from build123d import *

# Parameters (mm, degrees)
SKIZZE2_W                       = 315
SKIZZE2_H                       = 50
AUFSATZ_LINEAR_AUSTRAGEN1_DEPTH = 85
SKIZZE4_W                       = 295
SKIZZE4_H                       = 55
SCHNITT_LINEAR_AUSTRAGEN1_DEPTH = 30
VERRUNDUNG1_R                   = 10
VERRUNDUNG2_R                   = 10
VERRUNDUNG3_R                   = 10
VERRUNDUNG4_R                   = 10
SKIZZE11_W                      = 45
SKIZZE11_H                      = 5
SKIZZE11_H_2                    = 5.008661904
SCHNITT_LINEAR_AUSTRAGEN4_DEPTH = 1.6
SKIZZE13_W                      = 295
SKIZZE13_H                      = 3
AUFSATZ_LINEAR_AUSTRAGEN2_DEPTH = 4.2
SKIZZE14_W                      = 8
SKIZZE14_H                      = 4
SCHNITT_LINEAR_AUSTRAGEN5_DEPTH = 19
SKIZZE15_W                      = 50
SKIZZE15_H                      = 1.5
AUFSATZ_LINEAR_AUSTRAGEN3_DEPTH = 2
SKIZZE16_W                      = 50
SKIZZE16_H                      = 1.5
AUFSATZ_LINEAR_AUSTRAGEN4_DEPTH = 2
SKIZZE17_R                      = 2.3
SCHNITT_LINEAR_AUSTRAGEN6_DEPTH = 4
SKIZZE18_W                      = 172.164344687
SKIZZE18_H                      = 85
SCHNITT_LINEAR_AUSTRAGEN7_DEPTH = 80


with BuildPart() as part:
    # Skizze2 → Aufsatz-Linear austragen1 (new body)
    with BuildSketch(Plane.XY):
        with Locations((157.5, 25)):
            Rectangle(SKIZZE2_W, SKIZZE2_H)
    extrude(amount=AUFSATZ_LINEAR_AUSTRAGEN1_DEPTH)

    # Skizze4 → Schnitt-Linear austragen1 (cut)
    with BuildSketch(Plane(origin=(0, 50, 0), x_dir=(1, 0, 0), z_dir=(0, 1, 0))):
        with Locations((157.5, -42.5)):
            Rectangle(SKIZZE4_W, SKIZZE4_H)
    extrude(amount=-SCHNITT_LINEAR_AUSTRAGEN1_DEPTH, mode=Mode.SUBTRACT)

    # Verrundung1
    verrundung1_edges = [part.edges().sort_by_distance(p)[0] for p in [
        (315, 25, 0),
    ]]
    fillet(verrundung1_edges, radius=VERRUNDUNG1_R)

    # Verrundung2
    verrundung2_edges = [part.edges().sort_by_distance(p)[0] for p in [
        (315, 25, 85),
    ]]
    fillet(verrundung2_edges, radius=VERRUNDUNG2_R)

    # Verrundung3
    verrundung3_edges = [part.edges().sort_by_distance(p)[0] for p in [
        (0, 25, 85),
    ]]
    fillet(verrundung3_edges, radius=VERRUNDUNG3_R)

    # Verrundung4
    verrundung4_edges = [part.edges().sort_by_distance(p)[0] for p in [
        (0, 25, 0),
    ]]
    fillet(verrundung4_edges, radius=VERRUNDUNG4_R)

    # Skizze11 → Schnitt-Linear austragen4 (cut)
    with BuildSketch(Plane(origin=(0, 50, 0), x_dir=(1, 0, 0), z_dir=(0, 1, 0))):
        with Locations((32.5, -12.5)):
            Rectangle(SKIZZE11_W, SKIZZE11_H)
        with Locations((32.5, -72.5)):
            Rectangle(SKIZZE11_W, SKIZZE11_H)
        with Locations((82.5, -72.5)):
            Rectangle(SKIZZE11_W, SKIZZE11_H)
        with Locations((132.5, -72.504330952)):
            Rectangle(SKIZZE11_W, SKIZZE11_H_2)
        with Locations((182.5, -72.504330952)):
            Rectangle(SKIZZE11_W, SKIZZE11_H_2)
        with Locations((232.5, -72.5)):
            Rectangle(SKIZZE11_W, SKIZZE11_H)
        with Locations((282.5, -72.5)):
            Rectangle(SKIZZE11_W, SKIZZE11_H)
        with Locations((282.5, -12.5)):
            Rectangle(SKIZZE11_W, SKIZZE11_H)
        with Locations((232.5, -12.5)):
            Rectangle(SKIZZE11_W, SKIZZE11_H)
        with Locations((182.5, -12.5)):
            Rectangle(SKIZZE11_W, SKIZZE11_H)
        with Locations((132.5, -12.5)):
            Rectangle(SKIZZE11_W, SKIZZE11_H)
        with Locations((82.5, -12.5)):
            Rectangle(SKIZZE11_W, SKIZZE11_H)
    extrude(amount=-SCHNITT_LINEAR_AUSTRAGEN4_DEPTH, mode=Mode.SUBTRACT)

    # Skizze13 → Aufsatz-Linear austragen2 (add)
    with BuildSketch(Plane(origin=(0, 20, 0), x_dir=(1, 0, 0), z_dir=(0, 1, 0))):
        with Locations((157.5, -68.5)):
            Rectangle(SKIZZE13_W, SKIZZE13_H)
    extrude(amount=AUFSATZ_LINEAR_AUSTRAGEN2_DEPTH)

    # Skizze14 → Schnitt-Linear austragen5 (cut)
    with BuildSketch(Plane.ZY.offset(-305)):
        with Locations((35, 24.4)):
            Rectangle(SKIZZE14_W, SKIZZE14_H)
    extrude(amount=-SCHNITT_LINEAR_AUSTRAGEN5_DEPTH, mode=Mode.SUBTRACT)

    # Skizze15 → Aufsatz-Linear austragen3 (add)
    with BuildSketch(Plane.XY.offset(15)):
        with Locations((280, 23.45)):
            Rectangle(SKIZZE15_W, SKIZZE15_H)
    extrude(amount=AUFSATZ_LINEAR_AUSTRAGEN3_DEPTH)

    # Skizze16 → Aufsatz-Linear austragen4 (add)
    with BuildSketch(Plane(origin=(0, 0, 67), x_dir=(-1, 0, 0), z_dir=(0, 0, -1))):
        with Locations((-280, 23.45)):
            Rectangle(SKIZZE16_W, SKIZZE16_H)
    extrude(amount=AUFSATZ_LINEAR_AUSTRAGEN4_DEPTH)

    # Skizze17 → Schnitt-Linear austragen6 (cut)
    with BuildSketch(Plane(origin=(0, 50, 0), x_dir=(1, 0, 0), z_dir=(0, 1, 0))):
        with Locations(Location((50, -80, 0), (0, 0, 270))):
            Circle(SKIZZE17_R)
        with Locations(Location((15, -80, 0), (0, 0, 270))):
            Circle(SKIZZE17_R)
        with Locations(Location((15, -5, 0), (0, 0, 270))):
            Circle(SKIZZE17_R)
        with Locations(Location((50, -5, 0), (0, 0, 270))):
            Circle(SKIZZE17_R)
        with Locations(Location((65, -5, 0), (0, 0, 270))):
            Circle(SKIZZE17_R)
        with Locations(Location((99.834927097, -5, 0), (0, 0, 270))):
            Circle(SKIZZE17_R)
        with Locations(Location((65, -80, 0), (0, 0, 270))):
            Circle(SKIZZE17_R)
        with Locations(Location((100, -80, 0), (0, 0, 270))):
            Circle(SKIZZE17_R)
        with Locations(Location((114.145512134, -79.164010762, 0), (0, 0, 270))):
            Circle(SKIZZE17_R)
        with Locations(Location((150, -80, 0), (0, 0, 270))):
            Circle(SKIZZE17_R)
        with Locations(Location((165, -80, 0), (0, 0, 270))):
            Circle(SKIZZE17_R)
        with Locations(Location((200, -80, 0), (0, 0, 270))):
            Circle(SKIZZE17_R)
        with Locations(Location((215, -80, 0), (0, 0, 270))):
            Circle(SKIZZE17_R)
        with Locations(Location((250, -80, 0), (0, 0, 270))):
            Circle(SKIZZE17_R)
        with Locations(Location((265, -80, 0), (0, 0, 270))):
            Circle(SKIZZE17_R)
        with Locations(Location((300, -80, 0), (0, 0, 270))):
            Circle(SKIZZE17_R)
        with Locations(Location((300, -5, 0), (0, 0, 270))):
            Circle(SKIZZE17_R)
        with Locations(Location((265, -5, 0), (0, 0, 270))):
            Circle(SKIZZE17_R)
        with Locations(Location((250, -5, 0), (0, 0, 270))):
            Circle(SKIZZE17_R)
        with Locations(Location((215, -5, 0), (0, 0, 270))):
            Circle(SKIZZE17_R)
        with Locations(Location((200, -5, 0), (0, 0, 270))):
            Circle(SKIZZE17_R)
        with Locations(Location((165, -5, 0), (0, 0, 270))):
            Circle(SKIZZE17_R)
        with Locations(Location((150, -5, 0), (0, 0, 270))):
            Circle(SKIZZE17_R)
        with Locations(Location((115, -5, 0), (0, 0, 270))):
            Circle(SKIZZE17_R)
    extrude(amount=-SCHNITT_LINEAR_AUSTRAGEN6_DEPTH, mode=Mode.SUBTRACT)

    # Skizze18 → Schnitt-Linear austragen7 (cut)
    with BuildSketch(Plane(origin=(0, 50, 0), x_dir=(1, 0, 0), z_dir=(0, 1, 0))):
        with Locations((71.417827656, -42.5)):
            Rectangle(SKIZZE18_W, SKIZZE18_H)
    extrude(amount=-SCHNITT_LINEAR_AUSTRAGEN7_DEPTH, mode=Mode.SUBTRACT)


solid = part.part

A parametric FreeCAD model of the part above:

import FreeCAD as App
import Part
import Sketcher
from FreeCAD import Vector
Q = App.Units.Quantity


def edges_at(feature, points):
    """Names of the edges that pass closest to the given points."""
    edges = feature.Shape.Edges
    near = lambda p: min(range(len(edges)), key=lambda i: edges[i].distToShape(Part.Vertex(*p))[0])
    return sorted({f"Edge{near(p) + 1}" for p in points})


def add_polygon(sketch, points):
    """Adds a closed chain of lines whose ends are joined by coincident constraints."""
    first, n = sketch.GeometryCount, len(points)
    for a, b in zip(points, points[1:] + points[:1]):
        sketch.addGeometry(Part.LineSegment(App.Vector(*a, 0), App.Vector(*b, 0)), False)
    for i in range(n):
        sketch.addConstraint(Sketcher.Constraint("Coincident", first + i, 2, first + (i + 1) % n, 1))

doc = App.newDocument("Part")
body = doc.addObject("PartDesign::Body", "Body")

sketch1 = doc.addObject("Sketcher::SketchObject", "Sketch")
body.addObject(sketch1)
sketch1.AttachmentSupport = (doc.XY_Plane, [""])
sketch1.MapMode = "FlatFace"
add_polygon(sketch1, [(0, 50), (0, 0), (315, 0), (315, 50)])
sketch1.addConstraint([
    Sketcher.Constraint("Vertical", 0),
    Sketcher.Constraint("Horizontal", 1),
    Sketcher.Constraint("Vertical", 2),
    Sketcher.Constraint("Horizontal", 3),
    Sketcher.Constraint("Coincident", 0, 2, -1, 1),
    Sketcher.Constraint("DistanceX", 1, 1, 1, 2, Q("315 mm")),
    Sketcher.Constraint("DistanceY", 0, 2, 0, 1, Q("50 mm")),
])
pad1 = doc.addObject("PartDesign::Pad", "Pad")
body.addObject(pad1)
pad1.Profile = sketch1
pad1.Length = 85

sketch2 = doc.addObject("Sketcher::SketchObject", "Sketch001")
body.addObject(sketch2)
sketch2.AttachmentSupport = (doc.XZ_Plane, [""])
sketch2.MapMode = "FlatFace"
sketch2.AttachmentOffset = App.Placement(Vector(0, 0, -50), App.Rotation())
add_polygon(sketch2, [(10, 15), (10, 70), (305, 70), (305, 15)])
sketch2.addConstraint([
    Sketcher.Constraint("Vertical", 0),
    Sketcher.Constraint("Horizontal", 1),
    Sketcher.Constraint("Vertical", 2),
    Sketcher.Constraint("Horizontal", 3),
    Sketcher.Constraint("DistanceX", 1, 1, 1, 2, Q("295 mm")),
    Sketcher.Constraint("DistanceY", 0, 1, 0, 2, Q("55 mm")),
    Sketcher.Constraint("DistanceX", -1, 1, 0, 2, Q("10 mm")),
    Sketcher.Constraint("DistanceY", -1, 1, 0, 2, Q("70 mm")),
])
pocket1 = doc.addObject("PartDesign::Pocket", "Pocket")
body.addObject(pocket1)
pocket1.Profile = sketch2
pocket1.Length = 30
pocket1.Reversed = True
doc.recompute()

fillet = doc.addObject("PartDesign::Fillet", "Fillet")
body.addObject(fillet)
fillet.Base = (pocket1, edges_at(pocket1, [(315, 25, 0)]))
fillet.Radius = 10
doc.recompute()

fillet2 = doc.addObject("PartDesign::Fillet", "Fillet001")
body.addObject(fillet2)
fillet2.Base = (fillet, edges_at(fillet, [(315, 25, 85)]))
fillet2.Radius = 10
doc.recompute()

fillet3 = doc.addObject("PartDesign::Fillet", "Fillet002")
body.addObject(fillet3)
fillet3.Base = (fillet2, edges_at(fillet2, [(0, 25, 85)]))
fillet3.Radius = 10
doc.recompute()

fillet4 = doc.addObject("PartDesign::Fillet", "Fillet003")
body.addObject(fillet4)
fillet4.Base = (fillet3, edges_at(fillet3, [(0, 25, 0)]))
fillet4.Radius = 10

sketch3 = doc.addObject("Sketcher::SketchObject", "Sketch002")
body.addObject(sketch3)
sketch3.AttachmentSupport = (doc.XZ_Plane, [""])
sketch3.MapMode = "FlatFace"
sketch3.AttachmentOffset = App.Placement(Vector(0, 0, -50), App.Rotation())
add_polygon(sketch3, [(10, 10), (10, 15), (55, 15), (55, 10)])
add_polygon(sketch3, [(10, 70), (10, 75), (55, 75), (55, 70)])
add_polygon(sketch3, [(60, 70), (60, 75), (105, 75), (105, 70)])
add_polygon(sketch3, [(110, 70), (110, 75.008662), (155, 75.008662), (155, 70)])
add_polygon(sketch3, [(160, 70), (160, 75.008662), (205, 75.008662), (205, 70)])
add_polygon(sketch3, [(210, 70), (210, 75), (255, 75), (255, 70)])
add_polygon(sketch3, [(260, 70), (260, 75), (305, 75), (305, 70)])
add_polygon(sketch3, [(260, 10), (260, 15), (305, 15), (305, 10)])
add_polygon(sketch3, [(210, 10), (210, 15), (255, 15), (255, 10)])
add_polygon(sketch3, [(160, 10), (160, 15), (205, 15), (205, 10)])
add_polygon(sketch3, [(110, 10), (110, 15), (155, 15), (155, 10)])
add_polygon(sketch3, [(60, 10), (60, 15), (105, 15), (105, 10)])
sketch3.addConstraint([
    Sketcher.Constraint("Vertical", 0),
    Sketcher.Constraint("Horizontal", 1),
    Sketcher.Constraint("Vertical", 2),
    Sketcher.Constraint("Horizontal", 3),
    Sketcher.Constraint("Vertical", 4),
    Sketcher.Constraint("Horizontal", 5),
    Sketcher.Constraint("Vertical", 6),
    Sketcher.Constraint("Horizontal", 7),
    Sketcher.Constraint("Vertical", 8),
    Sketcher.Constraint("Horizontal", 9),
    Sketcher.Constraint("Vertical", 10),
    Sketcher.Constraint("Horizontal", 11),
    Sketcher.Constraint("Vertical", 12),
    Sketcher.Constraint("Horizontal", 13),
    Sketcher.Constraint("Vertical", 14),
    Sketcher.Constraint("Horizontal", 15),
    Sketcher.Constraint("Vertical", 16),
    Sketcher.Constraint("Horizontal", 17),
    Sketcher.Constraint("Vertical", 18),
    Sketcher.Constraint("Horizontal", 19),
    Sketcher.Constraint("Vertical", 20),
    Sketcher.Constraint("Horizontal", 21),
    Sketcher.Constraint("Vertical", 22),
    Sketcher.Constraint("Horizontal", 23),
    Sketcher.Constraint("Vertical", 24),
    Sketcher.Constraint("Horizontal", 25),
    Sketcher.Constraint("Vertical", 26),
    Sketcher.Constraint("Horizontal", 27),
    Sketcher.Constraint("Vertical", 28),
    Sketcher.Constraint("Horizontal", 29),
    Sketcher.Constraint("Vertical", 30),
    Sketcher.Constraint("Horizontal", 31),
    Sketcher.Constraint("Vertical", 32),
    Sketcher.Constraint("Horizontal", 33),
    Sketcher.Constraint("Vertical", 34),
    Sketcher.Constraint("Horizontal", 35),
    Sketcher.Constraint("Vertical", 36),
    Sketcher.Constraint("Horizontal", 37),
    Sketcher.Constraint("Vertical", 38),
    Sketcher.Constraint("Horizontal", 39),
    Sketcher.Constraint("Vertical", 40),
    Sketcher.Constraint("Horizontal", 41),
    Sketcher.Constraint("Vertical", 42),
    Sketcher.Constraint("Horizontal", 43),
    Sketcher.Constraint("Vertical", 44),
    Sketcher.Constraint("Horizontal", 45),
    Sketcher.Constraint("Vertical", 46),
    Sketcher.Constraint("Horizontal", 47),
    Sketcher.Constraint("Horizontal", 5, 2, 8, 2),
    Sketcher.Constraint("Horizontal", 7, 2, 10, 2),
    Sketcher.Constraint("Horizontal", 11, 2, 14, 2),
    Sketcher.Constraint("Horizontal", 13, 2, 16, 2),
    Sketcher.Constraint("Horizontal", 15, 2, 18, 2),
    Sketcher.Constraint("Horizontal", 9, 2, 20, 2),
    Sketcher.Constraint("Horizontal", 19, 2, 22, 2),
    Sketcher.Constraint("Horizontal", 21, 2, 24, 2),
    Sketcher.Constraint("Horizontal", 23, 2, 26, 2),
    Sketcher.Constraint("Horizontal", 1, 2, 28, 2),
    Sketcher.Constraint("Horizontal", 3, 2, 30, 2),
    Sketcher.Constraint("Horizontal", 29, 2, 32, 2),
    Sketcher.Constraint("Horizontal", 31, 2, 34, 2),
    Sketcher.Constraint("Horizontal", 33, 2, 36, 2),
    Sketcher.Constraint("Horizontal", 35, 2, 38, 2),
    Sketcher.Constraint("Horizontal", 37, 2, 40, 2),
    Sketcher.Constraint("Horizontal", 39, 2, 42, 2),
    Sketcher.Constraint("Horizontal", 41, 2, 44, 2),
    Sketcher.Constraint("Horizontal", 43, 2, 46, 2),
    Sketcher.Constraint("Vertical", 3, 2, 4, 2),
    Sketcher.Constraint("Vertical", 2, 2, 5, 2),
    Sketcher.Constraint("Vertical", 27, 2, 28, 2),
    Sketcher.Constraint("Vertical", 26, 2, 29, 2),
    Sketcher.Constraint("Vertical", 23, 2, 32, 2),
    Sketcher.Constraint("Vertical", 22, 2, 33, 2),
    Sketcher.Constraint("Vertical", 19, 2, 36, 2),
    Sketcher.Constraint("Vertical", 18, 2, 37, 2),
    Sketcher.Constraint("Vertical", 15, 2, 40, 2),
    Sketcher.Constraint("Vertical", 14, 2, 41, 2),
    Sketcher.Constraint("Vertical", 11, 2, 44, 2),
    Sketcher.Constraint("Vertical", 10, 2, 45, 2),
    Sketcher.Constraint("Equal", 7, 9),
    Sketcher.Constraint("Equal", 11, 13),
    Sketcher.Constraint("Equal", 15, 17),
    Sketcher.Constraint("Equal", 19, 21),
    Sketcher.Constraint("Equal", 23, 25),
    Sketcher.Constraint("Equal", 2, 4),
    Sketcher.Constraint("DistanceX", 1, 1, 1, 2, Q("45 mm")),
    Sketcher.Constraint("DistanceY", 0, 1, 0, 2, Q("5 mm")),
    Sketcher.Constraint("DistanceX", -1, 1, 0, 2, Q("10 mm")),
    Sketcher.Constraint("DistanceY", -1, 1, 0, 2, Q("15 mm")),
    Sketcher.Constraint("DistanceY", -1, 1, 4, 2, Q("75 mm")),
    Sketcher.Constraint("DistanceX", -1, 1, 8, 2, Q("60 mm")),
    Sketcher.Constraint("DistanceX", -1, 1, 12, 2, Q("110 mm")),
    Sketcher.Constraint("DistanceX", -1, 1, 16, 2, Q("160 mm")),
    Sketcher.Constraint("DistanceX", -1, 1, 20, 2, Q("210 mm")),
    Sketcher.Constraint("DistanceX", -1, 1, 24, 2, Q("260 mm")),
    Sketcher.Constraint("DistanceY", 12, 1, 12, 2, Q("5.008662 mm")),
])
pocket2 = doc.addObject("PartDesign::Pocket", "Pocket001")
body.addObject(pocket2)
pocket2.Profile = sketch3
pocket2.Length = 1.6
pocket2.Reversed = True

sketch4 = doc.addObject("Sketcher::SketchObject", "Sketch003")
body.addObject(sketch4)
sketch4.AttachmentSupport = (doc.XZ_Plane, [""])
sketch4.MapMode = "FlatFace"
sketch4.AttachmentOffset = App.Placement(Vector(0, 0, -20), App.Rotation())
add_polygon(sketch4, [(10, 67), (10, 70), (305, 70), (305, 67)])
sketch4.addConstraint([
    Sketcher.Constraint("Vertical", 0),
    Sketcher.Constraint("Horizontal", 1),
    Sketcher.Constraint("Vertical", 2),
    Sketcher.Constraint("Horizontal", 3),
    Sketcher.Constraint("DistanceX", 1, 1, 1, 2, Q("295 mm")),
    Sketcher.Constraint("DistanceY", 0, 1, 0, 2, Q("3 mm")),
    Sketcher.Constraint("DistanceX", -1, 1, 0, 2, Q("10 mm")),
    Sketcher.Constraint("DistanceY", -1, 1, 0, 2, Q("70 mm")),
])
pad2 = doc.addObject("PartDesign::Pad", "Pad001")
body.addObject(pad2)
pad2.Profile = sketch4
pad2.Length = 4.2
pad2.Reversed = True

sketch5 = doc.addObject("Sketcher::SketchObject", "Sketch004")
body.addObject(sketch5)
sketch5.AttachmentSupport = (doc.YZ_Plane, [""])
sketch5.MapMode = "FlatFace"
sketch5.AttachmentOffset = App.Placement(Vector(0, 0, 305), App.Rotation())
add_polygon(sketch5, [(26.4, 31), (22.4, 31), (22.4, 39), (26.4, 39)])
sketch5.addConstraint([
    Sketcher.Constraint("Horizontal", 0),
    Sketcher.Constraint("Vertical", 1),
    Sketcher.Constraint("Horizontal", 2),
    Sketcher.Constraint("Vertical", 3),
    Sketcher.Constraint("DistanceX", 0, 2, 0, 1, Q("4 mm")),
    Sketcher.Constraint("DistanceY", 1, 1, 1, 2, Q("8 mm")),
    Sketcher.Constraint("DistanceY", -1, 1, 0, 2, Q("31 mm")),
    Sketcher.Constraint("DistanceX", -1, 1, 0, 2, Q("22.4 mm")),
])
pocket3 = doc.addObject("PartDesign::Pocket", "Pocket002")
body.addObject(pocket3)
pocket3.Profile = sketch5
pocket3.Length = 19
pocket3.Reversed = True

sketch6 = doc.addObject("Sketcher::SketchObject", "Sketch005")
body.addObject(sketch6)
sketch6.AttachmentSupport = (doc.XY_Plane, [""])
sketch6.MapMode = "FlatFace"
sketch6.AttachmentOffset = App.Placement(Vector(0, 0, 15), App.Rotation())
add_polygon(sketch6, [(255, 24.2), (255, 22.7), (305, 22.7), (305, 24.2)])
sketch6.addConstraint([
    Sketcher.Constraint("Vertical", 0),
    Sketcher.Constraint("Horizontal", 1),
    Sketcher.Constraint("Vertical", 2),
    Sketcher.Constraint("Horizontal", 3),
    Sketcher.Constraint("DistanceX", 1, 1, 1, 2, Q("50 mm")),
    Sketcher.Constraint("DistanceY", 0, 2, 0, 1, Q("1.5 mm")),
    Sketcher.Constraint("DistanceX", -1, 1, 0, 2, Q("255 mm")),
    Sketcher.Constraint("DistanceY", -1, 1, 0, 2, Q("22.7 mm")),
])
pad3 = doc.addObject("PartDesign::Pad", "Pad002")
body.addObject(pad3)
pad3.Profile = sketch6
pad3.Length = 2

sketch7 = doc.addObject("Sketcher::SketchObject", "Sketch006")
body.addObject(sketch7)
sketch7.AttachmentSupport = (doc.XY_Plane, [""])
sketch7.MapMode = "FlatFace"
sketch7.AttachmentOffset = App.Placement(Vector(0, 0, 67), App.Rotation())
add_polygon(sketch7, [(305, 24.2), (305, 22.7), (255, 22.7), (255, 24.2)])
sketch7.addConstraint([
    Sketcher.Constraint("Vertical", 0),
    Sketcher.Constraint("Horizontal", 1),
    Sketcher.Constraint("Vertical", 2),
    Sketcher.Constraint("Horizontal", 3),
    Sketcher.Constraint("DistanceX", 1, 2, 1, 1, Q("50 mm")),
    Sketcher.Constraint("DistanceY", 0, 2, 0, 1, Q("1.5 mm")),
    Sketcher.Constraint("DistanceX", -1, 1, 0, 2, Q("305 mm")),
    Sketcher.Constraint("DistanceY", -1, 1, 0, 2, Q("22.7 mm")),
])
pad4 = doc.addObject("PartDesign::Pad", "Pad003")
body.addObject(pad4)
pad4.Profile = sketch7
pad4.Length = 2
pad4.Reversed = True

sketch8 = doc.addObject("Sketcher::SketchObject", "Sketch007")
body.addObject(sketch8)
sketch8.AttachmentSupport = (doc.XZ_Plane, [""])
sketch8.MapMode = "FlatFace"
sketch8.AttachmentOffset = App.Placement(Vector(0, 0, -50), App.Rotation())
sketch8.addGeometry([
    Part.Circle(Vector(50, 80, 0), Vector(0, 0, 1), 2.3),
    Part.Circle(Vector(15, 80, 0), Vector(0, 0, 1), 2.3),
    Part.Circle(Vector(15, 5, 0), Vector(0, 0, 1), 2.3),
    Part.Circle(Vector(50, 5, 0), Vector(0, 0, 1), 2.3),
    Part.Circle(Vector(65, 5, 0), Vector(0, 0, 1), 2.3),
    Part.Circle(Vector(99.834927, 5, 0), Vector(0, 0, 1), 2.3),
    Part.Circle(Vector(65, 80, 0), Vector(0, 0, 1), 2.3),
    Part.Circle(Vector(100, 80, 0), Vector(0, 0, 1), 2.3),
    Part.Circle(Vector(114.145512, 79.164011, 0), Vector(0, 0, 1), 2.3),
    Part.Circle(Vector(150, 80, 0), Vector(0, 0, 1), 2.3),
    Part.Circle(Vector(165, 80, 0), Vector(0, 0, 1), 2.3),
    Part.Circle(Vector(200, 80, 0), Vector(0, 0, 1), 2.3),
    Part.Circle(Vector(215, 80, 0), Vector(0, 0, 1), 2.3),
    Part.Circle(Vector(250, 80, 0), Vector(0, 0, 1), 2.3),
    Part.Circle(Vector(265, 80, 0), Vector(0, 0, 1), 2.3),
    Part.Circle(Vector(300, 80, 0), Vector(0, 0, 1), 2.3),
    Part.Circle(Vector(300, 5, 0), Vector(0, 0, 1), 2.3),
    Part.Circle(Vector(265, 5, 0), Vector(0, 0, 1), 2.3),
    Part.Circle(Vector(250, 5, 0), Vector(0, 0, 1), 2.3),
    Part.Circle(Vector(215, 5, 0), Vector(0, 0, 1), 2.3),
    Part.Circle(Vector(200, 5, 0), Vector(0, 0, 1), 2.3),
    Part.Circle(Vector(165, 5, 0), Vector(0, 0, 1), 2.3),
    Part.Circle(Vector(150, 5, 0), Vector(0, 0, 1), 2.3),
    Part.Circle(Vector(115, 5, 0), Vector(0, 0, 1), 2.3),
], False)
sketch8.addConstraint([
    Sketcher.Constraint("Equal", 0, 1),
    Sketcher.Constraint("Equal", 1, 2),
    Sketcher.Constraint("Equal", 2, 3),
    Sketcher.Constraint("Equal", 3, 4),
    Sketcher.Constraint("Equal", 4, 5),
    Sketcher.Constraint("Equal", 5, 6),
    Sketcher.Constraint("Equal", 6, 7),
    Sketcher.Constraint("Equal", 7, 8),
    Sketcher.Constraint("Equal", 8, 9),
    Sketcher.Constraint("Equal", 9, 10),
    Sketcher.Constraint("Equal", 10, 11),
    Sketcher.Constraint("Equal", 11, 12),
    Sketcher.Constraint("Equal", 12, 13),
    Sketcher.Constraint("Equal", 13, 14),
    Sketcher.Constraint("Equal", 14, 15),
    Sketcher.Constraint("Equal", 15, 16),
    Sketcher.Constraint("Equal", 16, 17),
    Sketcher.Constraint("Equal", 17, 18),
    Sketcher.Constraint("Equal", 18, 19),
    Sketcher.Constraint("Equal", 19, 20),
    Sketcher.Constraint("Equal", 20, 21),
    Sketcher.Constraint("Equal", 21, 22),
    Sketcher.Constraint("Equal", 22, 23),
    Sketcher.Constraint("Horizontal", 0, 3, 1, 3),
    Sketcher.Constraint("Horizontal", 2, 3, 3, 3),
    Sketcher.Constraint("Horizontal", 3, 3, 4, 3),
    Sketcher.Constraint("Horizontal", 4, 3, 5, 3),
    Sketcher.Constraint("Horizontal", 1, 3, 6, 3),
    Sketcher.Constraint("Horizontal", 6, 3, 7, 3),
    Sketcher.Constraint("Horizontal", 7, 3, 9, 3),
    Sketcher.Constraint("Horizontal", 9, 3, 10, 3),
    Sketcher.Constraint("Horizontal", 10, 3, 11, 3),
    Sketcher.Constraint("Horizontal", 11, 3, 12, 3),
    Sketcher.Constraint("Horizontal", 12, 3, 13, 3),
    Sketcher.Constraint("Horizontal", 13, 3, 14, 3),
    Sketcher.Constraint("Horizontal", 14, 3, 15, 3),
    Sketcher.Constraint("Horizontal", 5, 3, 16, 3),
    Sketcher.Constraint("Horizontal", 16, 3, 17, 3),
    Sketcher.Constraint("Horizontal", 17, 3, 18, 3),
    Sketcher.Constraint("Horizontal", 18, 3, 19, 3),
    Sketcher.Constraint("Horizontal", 19, 3, 20, 3),
    Sketcher.Constraint("Horizontal", 20, 3, 21, 3),
    Sketcher.Constraint("Horizontal", 21, 3, 22, 3),
    Sketcher.Constraint("Horizontal", 22, 3, 23, 3),
    Sketcher.Constraint("Vertical", 1, 3, 2, 3),
    Sketcher.Constraint("Vertical", 0, 3, 3, 3),
    Sketcher.Constraint("Vertical", 4, 3, 6, 3),
    Sketcher.Constraint("Vertical", 15, 3, 16, 3),
    Sketcher.Constraint("Vertical", 14, 3, 17, 3),
    Sketcher.Constraint("Vertical", 13, 3, 18, 3),
    Sketcher.Constraint("Vertical", 12, 3, 19, 3),
    Sketcher.Constraint("Vertical", 11, 3, 20, 3),
    Sketcher.Constraint("Vertical", 10, 3, 21, 3),
    Sketcher.Constraint("Vertical", 9, 3, 22, 3),
    Sketcher.Constraint("Diameter", 0, Q("4.6 mm")),
    Sketcher.Constraint("DistanceX", -1, 1, 0, 3, Q("50 mm")),
    Sketcher.Constraint("DistanceY", -1, 1, 0, 3, Q("80 mm")),
    Sketcher.Constraint("DistanceX", -1, 1, 1, 3, Q("15 mm")),
    Sketcher.Constraint("DistanceY", -1, 1, 2, 3, Q("5 mm")),
    Sketcher.Constraint("DistanceX", -1, 1, 4, 3, Q("65 mm")),
    Sketcher.Constraint("DistanceX", -1, 1, 7, 3, Q("100 mm")),
    Sketcher.Constraint("DistanceX", -1, 1, 9, 3, Q("150 mm")),
    Sketcher.Constraint("DistanceX", -1, 1, 10, 3, Q("165 mm")),
    Sketcher.Constraint("DistanceX", -1, 1, 11, 3, Q("200 mm")),
    Sketcher.Constraint("DistanceX", -1, 1, 12, 3, Q("215 mm")),
    Sketcher.Constraint("DistanceX", -1, 1, 13, 3, Q("250 mm")),
    Sketcher.Constraint("DistanceX", -1, 1, 14, 3, Q("265 mm")),
    Sketcher.Constraint("DistanceX", -1, 1, 15, 3, Q("300 mm")),
    Sketcher.Constraint("DistanceX", -1, 1, 23, 3, Q("115 mm")),
    Sketcher.Constraint("DistanceY", -1, 1, 8, 3, Q("79.164011 mm")),
    Sketcher.Constraint("DistanceX", -1, 1, 5, 3, Q("99.834927 mm")),
    Sketcher.Constraint("DistanceX", -1, 1, 8, 3, Q("114.145512 mm")),
])
pocket4 = doc.addObject("PartDesign::Pocket", "Pocket003")
body.addObject(pocket4)
pocket4.Profile = sketch8
pocket4.Length = 4
pocket4.Reversed = True

sketch9 = doc.addObject("Sketcher::SketchObject", "Sketch008")
body.addObject(sketch9)
sketch9.AttachmentSupport = (doc.XZ_Plane, [""])
sketch9.MapMode = "FlatFace"
sketch9.AttachmentOffset = App.Placement(Vector(0, 0, -50), App.Rotation())
add_polygon(sketch9, [(-14.664345, 0), (-14.664345, 85), (157.5, 85), (157.5, 0)])
sketch9.addConstraint([
    Sketcher.Constraint("Vertical", 0),
    Sketcher.Constraint("Horizontal", 1),
    Sketcher.Constraint("Vertical", 2),
    Sketcher.Constraint("Horizontal", 3),
    Sketcher.Constraint("PointOnObject", 2, 2, -1),
    Sketcher.Constraint("DistanceY", 0, 1, 0, 2, Q("85 mm")),
    Sketcher.Constraint("DistanceX", -1, 1, 1, 2, Q("157.5 mm")),
    Sketcher.Constraint("DistanceX", 1, 1, 1, 2, Q("172.164345 mm")),
])
pocket5 = doc.addObject("PartDesign::Pocket", "Pocket004")
body.addObject(pocket5)
pocket5.Profile = sketch9
pocket5.Length = 80
pocket5.Reversed = True

doc.recompute()
